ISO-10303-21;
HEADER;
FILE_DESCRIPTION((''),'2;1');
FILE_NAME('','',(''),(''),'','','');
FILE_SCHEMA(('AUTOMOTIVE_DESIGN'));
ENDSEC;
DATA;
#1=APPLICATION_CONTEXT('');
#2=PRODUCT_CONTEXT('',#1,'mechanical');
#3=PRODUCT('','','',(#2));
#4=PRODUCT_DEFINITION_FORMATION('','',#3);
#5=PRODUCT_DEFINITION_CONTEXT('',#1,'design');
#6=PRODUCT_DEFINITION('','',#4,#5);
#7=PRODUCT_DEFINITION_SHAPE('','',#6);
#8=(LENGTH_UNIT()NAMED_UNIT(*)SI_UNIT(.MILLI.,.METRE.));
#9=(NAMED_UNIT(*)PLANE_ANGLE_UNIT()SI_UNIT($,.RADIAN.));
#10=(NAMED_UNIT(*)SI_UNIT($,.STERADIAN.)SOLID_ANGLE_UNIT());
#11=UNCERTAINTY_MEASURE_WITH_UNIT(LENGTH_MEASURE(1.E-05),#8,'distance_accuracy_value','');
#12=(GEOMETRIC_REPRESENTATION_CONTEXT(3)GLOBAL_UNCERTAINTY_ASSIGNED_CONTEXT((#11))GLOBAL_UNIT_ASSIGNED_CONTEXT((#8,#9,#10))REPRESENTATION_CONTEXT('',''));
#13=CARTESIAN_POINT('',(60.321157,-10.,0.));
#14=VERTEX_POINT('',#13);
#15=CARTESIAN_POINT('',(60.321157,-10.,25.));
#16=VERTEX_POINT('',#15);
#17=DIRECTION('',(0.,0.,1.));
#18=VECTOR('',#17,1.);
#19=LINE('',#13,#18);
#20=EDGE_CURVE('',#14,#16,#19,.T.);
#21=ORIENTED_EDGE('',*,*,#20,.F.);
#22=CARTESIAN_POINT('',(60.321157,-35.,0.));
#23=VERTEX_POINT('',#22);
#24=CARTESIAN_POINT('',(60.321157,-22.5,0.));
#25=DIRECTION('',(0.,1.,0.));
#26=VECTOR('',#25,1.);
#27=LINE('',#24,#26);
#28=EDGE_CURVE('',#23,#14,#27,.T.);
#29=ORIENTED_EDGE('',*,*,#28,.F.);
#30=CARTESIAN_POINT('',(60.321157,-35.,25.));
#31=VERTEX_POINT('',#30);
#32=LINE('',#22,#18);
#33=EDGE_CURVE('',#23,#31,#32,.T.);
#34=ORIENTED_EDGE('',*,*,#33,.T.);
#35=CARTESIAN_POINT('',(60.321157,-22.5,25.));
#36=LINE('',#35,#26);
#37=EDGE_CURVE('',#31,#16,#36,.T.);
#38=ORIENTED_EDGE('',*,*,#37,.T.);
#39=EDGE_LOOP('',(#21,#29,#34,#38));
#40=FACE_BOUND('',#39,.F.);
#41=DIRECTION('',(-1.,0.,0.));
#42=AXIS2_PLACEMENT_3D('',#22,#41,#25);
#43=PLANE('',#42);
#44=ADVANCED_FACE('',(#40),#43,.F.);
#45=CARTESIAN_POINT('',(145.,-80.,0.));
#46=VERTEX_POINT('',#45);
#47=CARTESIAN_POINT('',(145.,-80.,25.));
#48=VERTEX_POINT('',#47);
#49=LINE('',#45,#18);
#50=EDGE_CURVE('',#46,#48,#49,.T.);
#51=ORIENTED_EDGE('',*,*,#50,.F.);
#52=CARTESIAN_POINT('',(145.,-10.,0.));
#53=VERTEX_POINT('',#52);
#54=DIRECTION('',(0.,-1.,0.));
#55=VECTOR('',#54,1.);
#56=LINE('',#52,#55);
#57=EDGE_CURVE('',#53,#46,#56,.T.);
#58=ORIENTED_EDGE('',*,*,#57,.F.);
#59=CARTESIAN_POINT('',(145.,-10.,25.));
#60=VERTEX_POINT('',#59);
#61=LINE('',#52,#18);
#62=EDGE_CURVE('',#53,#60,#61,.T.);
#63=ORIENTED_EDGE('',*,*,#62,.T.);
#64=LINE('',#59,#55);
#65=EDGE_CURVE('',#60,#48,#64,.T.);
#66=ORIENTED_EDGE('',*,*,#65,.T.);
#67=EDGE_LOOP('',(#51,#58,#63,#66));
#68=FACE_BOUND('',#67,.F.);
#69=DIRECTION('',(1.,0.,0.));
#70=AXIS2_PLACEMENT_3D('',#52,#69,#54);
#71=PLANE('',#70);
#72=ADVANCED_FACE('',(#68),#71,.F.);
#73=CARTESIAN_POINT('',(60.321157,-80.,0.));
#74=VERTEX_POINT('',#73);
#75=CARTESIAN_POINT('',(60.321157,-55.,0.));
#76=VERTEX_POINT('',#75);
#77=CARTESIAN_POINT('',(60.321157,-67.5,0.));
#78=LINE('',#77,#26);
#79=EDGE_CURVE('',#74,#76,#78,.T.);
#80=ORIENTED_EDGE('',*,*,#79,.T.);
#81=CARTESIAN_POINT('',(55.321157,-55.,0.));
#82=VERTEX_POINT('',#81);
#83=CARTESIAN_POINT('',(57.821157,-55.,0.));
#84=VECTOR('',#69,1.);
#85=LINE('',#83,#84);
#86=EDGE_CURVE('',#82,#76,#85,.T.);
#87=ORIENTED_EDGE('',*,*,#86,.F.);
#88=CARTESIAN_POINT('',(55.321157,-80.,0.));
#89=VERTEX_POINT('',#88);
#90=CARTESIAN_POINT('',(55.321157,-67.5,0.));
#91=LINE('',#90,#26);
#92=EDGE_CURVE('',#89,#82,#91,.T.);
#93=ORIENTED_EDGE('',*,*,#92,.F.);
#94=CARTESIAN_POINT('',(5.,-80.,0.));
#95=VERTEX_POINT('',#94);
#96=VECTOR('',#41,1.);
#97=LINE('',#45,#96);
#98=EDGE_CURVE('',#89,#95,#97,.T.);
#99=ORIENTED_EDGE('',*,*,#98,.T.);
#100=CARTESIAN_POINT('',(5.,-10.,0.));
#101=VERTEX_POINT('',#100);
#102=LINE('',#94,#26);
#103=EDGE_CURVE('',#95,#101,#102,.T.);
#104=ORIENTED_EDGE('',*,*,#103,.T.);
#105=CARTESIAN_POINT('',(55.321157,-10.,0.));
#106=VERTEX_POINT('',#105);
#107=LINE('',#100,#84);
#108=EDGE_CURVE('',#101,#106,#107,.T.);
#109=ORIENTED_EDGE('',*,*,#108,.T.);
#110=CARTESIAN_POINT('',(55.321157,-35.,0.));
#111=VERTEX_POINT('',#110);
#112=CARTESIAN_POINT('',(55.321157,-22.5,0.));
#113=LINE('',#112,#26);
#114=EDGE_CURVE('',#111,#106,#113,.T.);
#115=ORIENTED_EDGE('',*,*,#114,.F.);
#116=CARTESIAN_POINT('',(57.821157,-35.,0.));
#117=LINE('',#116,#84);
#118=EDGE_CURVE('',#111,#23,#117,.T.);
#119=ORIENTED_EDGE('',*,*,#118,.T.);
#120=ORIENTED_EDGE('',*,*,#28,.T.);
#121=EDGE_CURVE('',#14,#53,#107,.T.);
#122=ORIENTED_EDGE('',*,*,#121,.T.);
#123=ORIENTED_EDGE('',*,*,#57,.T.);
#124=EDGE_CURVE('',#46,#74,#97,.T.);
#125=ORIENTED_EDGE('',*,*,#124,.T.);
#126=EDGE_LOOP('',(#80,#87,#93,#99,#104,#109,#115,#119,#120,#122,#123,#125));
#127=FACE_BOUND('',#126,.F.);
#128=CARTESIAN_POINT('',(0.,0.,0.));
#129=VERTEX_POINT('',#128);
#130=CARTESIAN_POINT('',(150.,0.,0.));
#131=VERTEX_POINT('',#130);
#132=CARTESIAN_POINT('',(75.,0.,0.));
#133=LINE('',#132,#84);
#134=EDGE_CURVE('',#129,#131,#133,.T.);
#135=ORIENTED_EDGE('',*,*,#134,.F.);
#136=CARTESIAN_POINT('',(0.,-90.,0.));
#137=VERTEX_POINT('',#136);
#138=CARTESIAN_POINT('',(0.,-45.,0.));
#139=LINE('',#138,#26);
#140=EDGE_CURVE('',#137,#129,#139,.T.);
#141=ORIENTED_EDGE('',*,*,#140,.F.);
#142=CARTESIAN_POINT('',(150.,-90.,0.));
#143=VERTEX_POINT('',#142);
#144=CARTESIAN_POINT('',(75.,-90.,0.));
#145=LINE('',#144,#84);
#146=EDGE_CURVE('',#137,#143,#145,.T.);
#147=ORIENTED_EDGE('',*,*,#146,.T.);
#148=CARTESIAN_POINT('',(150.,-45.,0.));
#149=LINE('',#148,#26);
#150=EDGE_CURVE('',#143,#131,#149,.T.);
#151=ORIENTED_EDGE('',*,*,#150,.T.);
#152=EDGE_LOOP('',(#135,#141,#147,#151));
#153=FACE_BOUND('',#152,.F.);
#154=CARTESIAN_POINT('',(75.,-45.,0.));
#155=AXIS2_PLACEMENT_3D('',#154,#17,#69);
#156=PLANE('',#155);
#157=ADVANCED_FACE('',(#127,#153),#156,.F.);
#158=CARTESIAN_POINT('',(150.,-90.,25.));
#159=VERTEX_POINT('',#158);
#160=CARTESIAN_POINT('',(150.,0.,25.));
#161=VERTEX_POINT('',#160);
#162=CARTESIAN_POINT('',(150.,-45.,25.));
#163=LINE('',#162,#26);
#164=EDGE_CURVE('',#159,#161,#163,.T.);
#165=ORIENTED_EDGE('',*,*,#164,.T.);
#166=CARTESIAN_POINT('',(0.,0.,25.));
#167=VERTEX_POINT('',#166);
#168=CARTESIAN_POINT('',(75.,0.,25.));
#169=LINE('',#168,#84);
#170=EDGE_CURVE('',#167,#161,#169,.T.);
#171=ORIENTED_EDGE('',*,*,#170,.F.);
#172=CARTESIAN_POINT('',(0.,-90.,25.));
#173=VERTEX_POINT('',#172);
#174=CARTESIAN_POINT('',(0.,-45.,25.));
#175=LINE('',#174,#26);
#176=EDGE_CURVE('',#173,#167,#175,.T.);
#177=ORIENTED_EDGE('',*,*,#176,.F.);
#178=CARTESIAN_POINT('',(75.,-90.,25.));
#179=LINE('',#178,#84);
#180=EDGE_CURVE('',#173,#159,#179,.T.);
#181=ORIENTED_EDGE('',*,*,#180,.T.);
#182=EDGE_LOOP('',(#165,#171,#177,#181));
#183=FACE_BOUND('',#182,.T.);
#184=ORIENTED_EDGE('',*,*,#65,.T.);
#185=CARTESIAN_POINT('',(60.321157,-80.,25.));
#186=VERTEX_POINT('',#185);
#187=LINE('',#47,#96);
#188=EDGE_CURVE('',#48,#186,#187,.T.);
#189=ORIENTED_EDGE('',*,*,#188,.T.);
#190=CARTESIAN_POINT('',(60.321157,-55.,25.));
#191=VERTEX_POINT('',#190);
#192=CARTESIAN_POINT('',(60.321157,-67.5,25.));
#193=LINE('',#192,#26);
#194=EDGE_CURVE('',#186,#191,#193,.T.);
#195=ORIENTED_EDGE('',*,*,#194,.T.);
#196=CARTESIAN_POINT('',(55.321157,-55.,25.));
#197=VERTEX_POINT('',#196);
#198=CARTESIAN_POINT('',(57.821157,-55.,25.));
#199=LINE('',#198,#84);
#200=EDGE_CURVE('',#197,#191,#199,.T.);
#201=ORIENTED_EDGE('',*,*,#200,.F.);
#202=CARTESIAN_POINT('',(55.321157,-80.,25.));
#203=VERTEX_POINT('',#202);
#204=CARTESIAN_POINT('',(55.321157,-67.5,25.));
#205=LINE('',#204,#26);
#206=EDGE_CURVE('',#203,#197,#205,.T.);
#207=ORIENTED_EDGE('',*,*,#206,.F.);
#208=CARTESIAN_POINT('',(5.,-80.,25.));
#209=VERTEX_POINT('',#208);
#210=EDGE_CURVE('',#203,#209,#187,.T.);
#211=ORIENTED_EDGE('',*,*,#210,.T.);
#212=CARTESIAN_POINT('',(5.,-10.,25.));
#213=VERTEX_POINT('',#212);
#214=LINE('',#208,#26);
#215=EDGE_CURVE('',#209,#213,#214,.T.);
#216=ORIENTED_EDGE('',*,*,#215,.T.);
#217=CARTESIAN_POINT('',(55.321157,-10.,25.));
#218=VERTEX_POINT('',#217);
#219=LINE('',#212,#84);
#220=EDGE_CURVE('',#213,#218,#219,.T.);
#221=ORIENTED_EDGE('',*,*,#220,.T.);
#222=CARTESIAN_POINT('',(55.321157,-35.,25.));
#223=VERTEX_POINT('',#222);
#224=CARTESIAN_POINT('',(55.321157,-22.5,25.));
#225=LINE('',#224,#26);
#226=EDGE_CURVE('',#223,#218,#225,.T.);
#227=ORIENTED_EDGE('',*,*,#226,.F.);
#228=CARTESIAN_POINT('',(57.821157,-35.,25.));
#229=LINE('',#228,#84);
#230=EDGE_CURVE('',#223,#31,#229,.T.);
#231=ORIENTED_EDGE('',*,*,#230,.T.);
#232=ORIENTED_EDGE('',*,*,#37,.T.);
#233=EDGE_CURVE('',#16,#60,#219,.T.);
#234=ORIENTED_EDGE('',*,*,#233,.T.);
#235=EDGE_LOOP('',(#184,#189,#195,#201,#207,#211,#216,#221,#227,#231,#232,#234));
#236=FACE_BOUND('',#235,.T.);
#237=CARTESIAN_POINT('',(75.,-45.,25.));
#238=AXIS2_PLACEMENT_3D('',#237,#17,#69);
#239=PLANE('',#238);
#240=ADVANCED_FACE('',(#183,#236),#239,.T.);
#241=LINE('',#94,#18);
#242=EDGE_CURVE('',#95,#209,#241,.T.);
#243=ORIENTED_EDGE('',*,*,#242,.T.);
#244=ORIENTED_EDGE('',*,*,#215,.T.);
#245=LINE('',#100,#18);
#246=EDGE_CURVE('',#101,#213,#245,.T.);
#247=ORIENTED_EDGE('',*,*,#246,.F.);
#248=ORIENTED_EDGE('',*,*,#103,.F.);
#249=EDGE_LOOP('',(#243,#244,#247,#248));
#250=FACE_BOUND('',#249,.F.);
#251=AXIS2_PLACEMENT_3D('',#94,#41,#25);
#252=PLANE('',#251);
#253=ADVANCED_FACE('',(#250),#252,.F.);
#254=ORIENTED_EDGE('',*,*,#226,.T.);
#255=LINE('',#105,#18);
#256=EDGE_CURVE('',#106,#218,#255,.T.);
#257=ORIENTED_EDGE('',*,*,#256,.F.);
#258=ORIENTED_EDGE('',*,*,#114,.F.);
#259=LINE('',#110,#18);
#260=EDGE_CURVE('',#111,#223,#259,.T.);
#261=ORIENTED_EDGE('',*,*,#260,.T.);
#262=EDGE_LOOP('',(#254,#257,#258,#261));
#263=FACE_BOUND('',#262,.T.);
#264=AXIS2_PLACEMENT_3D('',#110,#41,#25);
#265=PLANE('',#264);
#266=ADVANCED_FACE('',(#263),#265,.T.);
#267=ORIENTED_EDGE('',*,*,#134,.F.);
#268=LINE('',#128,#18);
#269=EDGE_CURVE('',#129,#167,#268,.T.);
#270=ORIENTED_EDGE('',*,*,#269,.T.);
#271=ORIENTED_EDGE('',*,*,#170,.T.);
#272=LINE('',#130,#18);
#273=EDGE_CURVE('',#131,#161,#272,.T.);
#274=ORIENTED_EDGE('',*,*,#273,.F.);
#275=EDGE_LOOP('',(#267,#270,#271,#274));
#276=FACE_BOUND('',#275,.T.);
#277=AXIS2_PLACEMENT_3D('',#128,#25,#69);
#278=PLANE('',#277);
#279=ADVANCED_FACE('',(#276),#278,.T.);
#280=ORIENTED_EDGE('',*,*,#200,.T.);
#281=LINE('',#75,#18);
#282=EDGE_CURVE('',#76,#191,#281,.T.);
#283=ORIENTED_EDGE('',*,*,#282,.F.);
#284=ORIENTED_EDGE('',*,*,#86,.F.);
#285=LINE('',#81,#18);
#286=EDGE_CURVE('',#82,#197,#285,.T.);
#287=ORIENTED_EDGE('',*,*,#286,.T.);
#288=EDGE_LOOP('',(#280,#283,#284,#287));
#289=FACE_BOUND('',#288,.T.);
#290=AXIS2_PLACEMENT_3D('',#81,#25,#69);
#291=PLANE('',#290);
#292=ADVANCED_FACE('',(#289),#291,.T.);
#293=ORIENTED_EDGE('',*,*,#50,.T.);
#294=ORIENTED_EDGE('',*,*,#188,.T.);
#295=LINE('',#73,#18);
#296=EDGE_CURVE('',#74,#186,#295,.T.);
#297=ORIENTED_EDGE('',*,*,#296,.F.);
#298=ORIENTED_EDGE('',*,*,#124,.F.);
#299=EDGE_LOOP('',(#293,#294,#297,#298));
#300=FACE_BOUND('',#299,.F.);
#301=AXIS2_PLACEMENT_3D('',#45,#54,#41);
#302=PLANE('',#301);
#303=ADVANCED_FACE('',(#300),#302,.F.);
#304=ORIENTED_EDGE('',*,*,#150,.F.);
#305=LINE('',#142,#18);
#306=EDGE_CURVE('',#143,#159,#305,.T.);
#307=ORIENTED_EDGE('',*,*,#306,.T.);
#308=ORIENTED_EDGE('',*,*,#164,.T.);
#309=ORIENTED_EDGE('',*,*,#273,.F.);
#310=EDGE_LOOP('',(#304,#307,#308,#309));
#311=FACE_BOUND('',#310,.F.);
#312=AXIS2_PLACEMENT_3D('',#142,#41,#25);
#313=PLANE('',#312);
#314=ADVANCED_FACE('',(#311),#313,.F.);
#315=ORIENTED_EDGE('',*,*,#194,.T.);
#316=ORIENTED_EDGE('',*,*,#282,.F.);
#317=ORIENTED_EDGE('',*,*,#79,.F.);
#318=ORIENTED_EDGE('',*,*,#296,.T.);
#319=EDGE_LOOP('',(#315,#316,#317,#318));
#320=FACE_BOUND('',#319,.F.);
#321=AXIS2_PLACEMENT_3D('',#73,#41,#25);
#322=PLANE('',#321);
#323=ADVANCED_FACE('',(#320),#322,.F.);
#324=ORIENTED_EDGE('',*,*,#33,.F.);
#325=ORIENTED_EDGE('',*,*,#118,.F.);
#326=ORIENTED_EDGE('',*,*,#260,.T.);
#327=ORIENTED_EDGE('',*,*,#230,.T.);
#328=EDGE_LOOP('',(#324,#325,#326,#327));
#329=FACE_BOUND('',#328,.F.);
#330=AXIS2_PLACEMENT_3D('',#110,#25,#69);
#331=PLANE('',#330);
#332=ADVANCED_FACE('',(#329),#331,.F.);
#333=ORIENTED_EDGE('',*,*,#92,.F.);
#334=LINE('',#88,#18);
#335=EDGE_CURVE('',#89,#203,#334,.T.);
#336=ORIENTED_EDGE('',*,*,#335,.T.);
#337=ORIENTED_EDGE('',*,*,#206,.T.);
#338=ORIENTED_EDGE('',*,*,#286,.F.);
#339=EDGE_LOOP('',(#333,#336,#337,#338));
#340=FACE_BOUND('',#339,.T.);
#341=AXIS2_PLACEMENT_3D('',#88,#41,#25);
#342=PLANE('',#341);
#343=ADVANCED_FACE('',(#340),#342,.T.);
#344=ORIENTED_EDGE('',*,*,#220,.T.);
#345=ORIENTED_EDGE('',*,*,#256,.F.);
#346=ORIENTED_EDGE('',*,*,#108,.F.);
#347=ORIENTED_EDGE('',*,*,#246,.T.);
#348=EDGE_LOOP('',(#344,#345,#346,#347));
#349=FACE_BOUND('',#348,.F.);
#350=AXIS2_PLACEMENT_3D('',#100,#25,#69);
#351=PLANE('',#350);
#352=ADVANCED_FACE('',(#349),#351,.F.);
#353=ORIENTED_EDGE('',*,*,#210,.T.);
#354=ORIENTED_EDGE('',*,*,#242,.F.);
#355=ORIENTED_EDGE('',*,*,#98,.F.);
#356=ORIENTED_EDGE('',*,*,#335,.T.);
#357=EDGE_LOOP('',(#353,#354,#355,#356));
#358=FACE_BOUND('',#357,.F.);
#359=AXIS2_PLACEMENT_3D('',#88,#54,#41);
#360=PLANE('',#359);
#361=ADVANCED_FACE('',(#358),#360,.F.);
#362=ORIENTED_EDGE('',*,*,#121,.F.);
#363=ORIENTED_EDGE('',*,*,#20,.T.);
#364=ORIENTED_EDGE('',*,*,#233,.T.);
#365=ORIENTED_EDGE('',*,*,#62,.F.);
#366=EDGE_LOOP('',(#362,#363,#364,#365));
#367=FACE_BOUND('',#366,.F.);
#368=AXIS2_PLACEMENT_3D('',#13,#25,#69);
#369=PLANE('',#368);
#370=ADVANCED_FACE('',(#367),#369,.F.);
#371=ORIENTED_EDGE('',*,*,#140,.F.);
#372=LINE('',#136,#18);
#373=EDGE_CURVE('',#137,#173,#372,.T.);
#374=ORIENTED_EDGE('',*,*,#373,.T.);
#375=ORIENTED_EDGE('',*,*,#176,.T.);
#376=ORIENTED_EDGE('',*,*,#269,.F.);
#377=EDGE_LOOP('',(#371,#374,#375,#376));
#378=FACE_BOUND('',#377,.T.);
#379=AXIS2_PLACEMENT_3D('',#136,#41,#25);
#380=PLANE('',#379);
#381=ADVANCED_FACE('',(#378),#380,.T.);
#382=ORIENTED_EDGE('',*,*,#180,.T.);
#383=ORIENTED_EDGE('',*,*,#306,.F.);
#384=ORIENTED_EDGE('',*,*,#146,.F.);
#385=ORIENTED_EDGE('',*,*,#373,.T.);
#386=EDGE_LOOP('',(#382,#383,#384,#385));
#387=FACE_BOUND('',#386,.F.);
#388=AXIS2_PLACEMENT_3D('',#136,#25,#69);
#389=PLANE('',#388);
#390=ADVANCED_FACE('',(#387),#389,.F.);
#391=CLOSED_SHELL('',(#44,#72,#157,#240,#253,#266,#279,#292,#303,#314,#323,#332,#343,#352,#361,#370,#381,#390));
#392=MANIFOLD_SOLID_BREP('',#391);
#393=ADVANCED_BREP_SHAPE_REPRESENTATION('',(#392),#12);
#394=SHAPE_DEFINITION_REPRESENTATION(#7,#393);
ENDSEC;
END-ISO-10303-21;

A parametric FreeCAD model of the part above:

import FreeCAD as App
import Part
import Sketcher
from FreeCAD import Vector


def add_polygon(sketch, points):
    """Adds a closed chain of lines whose ends are joined by coincident constraints."""
    first, n = sketch.GeometryCount, len(points)
    for a, b in zip(points, points[1:] + points[:1]):
        sketch.addGeometry(Part.LineSegment(App.Vector(*a, 0), App.Vector(*b, 0)), False)
    for i in range(n):
        sketch.addConstraint(Sketcher.Constraint("Coincident", first + i, 2, first + (i + 1) % n, 1))

doc = App.newDocument("Part")
body = doc.addObject("PartDesign::Body", "Body")

sketch1 = body.newObject("Sketcher::SketchObject", "Sketch")
sketch1.AttachmentSupport = (doc.getObject("XY_Plane"), [""])
sketch1.MapMode = "FlatFace"
add_polygon(sketch1, [(0, 0), (0, -90), (150, -90), (150, 0)])
add_polygon(sketch1, [(145, -80), (60.321157, -80), (60.321157, -55), (55.321157, -55), (55.321157, -80), (5, -80), (5, -10), (55.321157, -10), (55.321157, -35), (60.321157, -35), (60.321157, -10), (145, -10)])
sketch1.addConstraint([
    Sketcher.Constraint("Vertical", 0),
    Sketcher.Constraint("Horizontal", 1),
    Sketcher.Constraint("Vertical", 2),
    Sketcher.Constraint("Horizontal", 3),
    Sketcher.Constraint("Horizontal", 4),
    Sketcher.Constraint("Vertical", 5),
    Sketcher.Constraint("Horizontal", 6),
    Sketcher.Constraint("Vertical", 7),
    Sketcher.Constraint("Horizontal", 8),
    Sketcher.Constraint("Vertical", 9),
    Sketcher.Constraint("Horizontal", 10),
    Sketcher.Constraint("Vertical", 11),
    Sketcher.Constraint("Horizontal", 12),
    Sketcher.Constraint("Vertical", 13),
    Sketcher.Constraint("Horizontal", 14),
    Sketcher.Constraint("Vertical", 15),
    Sketcher.Constraint("Coincident", 3, 2, -1, 1),
    Sketcher.Constraint("Horizontal", 4, 2, 7, 2),
    Sketcher.Constraint("Horizontal", 10, 2, 13, 2),
    Sketcher.Constraint("Vertical", 7, 2, 10, 2),
    Sketcher.Constraint("Vertical", 5, 2, 12, 2),
    Sketcher.Constraint("Equal", 7, 11),
    Sketcher.Constraint("DistanceX", 1, 1, 1, 2, 150.0),
    Sketcher.Constraint("DistanceX", 6, 2, 6, 1, 5.0),
    Sketcher.Constraint("DistanceY", 0, 2, 0, 1, 90.0),
    Sketcher.Constraint("DistanceY", 5, 1, 5, 2, 25.0),
    Sketcher.Constraint("DistanceY", 9, 1, 9, 2, 70.0),
    Sketcher.Constraint("DistanceY", 4, 2, -1, 1, 80.0),
    Sketcher.Constraint("DistanceX", -1, 1, 8, 2, 5.0),
    Sketcher.Constraint("DistanceX", -1, 1, 14, 2, 145.0),
    Sketcher.Constraint("DistanceX", 4, 2, 4, 1, 84.678843),
])
pad1 = body.newObject("PartDesign::Pad", "Pad")
pad1.Profile = sketch1
pad1.Length = 25

doc.recompute()
